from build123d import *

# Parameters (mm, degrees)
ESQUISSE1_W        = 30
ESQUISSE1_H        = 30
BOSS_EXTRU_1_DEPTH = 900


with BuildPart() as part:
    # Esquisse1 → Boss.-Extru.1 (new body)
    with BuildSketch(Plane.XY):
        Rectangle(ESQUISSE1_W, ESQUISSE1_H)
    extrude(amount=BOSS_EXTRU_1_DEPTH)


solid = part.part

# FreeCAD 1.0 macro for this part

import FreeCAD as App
import Part
import Sketcher
Q = App.Units.Quantity


def add_polygon(sketch, points):
    """Adds a closed chain of lines whose ends are joined by coincident constraints."""
    first, n = sketch.GeometryCount, len(points)
    for a, b in zip(points, points[1:] + points[:1]):
        sketch.addGeometry(Part.LineSegment(App.Vector(*a, 0), App.Vector(*b, 0)), False)
    for i in range(n):
        sketch.addConstraint(Sketcher.Constraint("Coincident", first + i, 2, first + (i + 1) % n, 1))

doc = App.newDocument("Part")
body = doc.addObject("PartDesign::Body", "Body")

# Sketch on XY plane
sketch1 = doc.addObject("Sketcher::SketchObject", "Sketch")
body.addObject(sketch1)
sketch1.AttachmentSupport = (doc.XY_Plane, [""])
sketch1.MapMode = "FlatFace"
add_polygon(sketch1, [(-15, 15), (-15, -15), (15, -15), (15, 15)])  # lines 0-3
sketch1.addConstraint(Sketcher.Constraint("Vertical", 0))
sketch1.addConstraint(Sketcher.Constraint("Horizontal", 1))
sketch1.addConstraint(Sketcher.Constraint("Vertical", 2))
sketch1.addConstraint(Sketcher.Constraint("Horizontal", 3))
sketch1.addConstraint(Sketcher.Constraint("Symmetric", 0, 2, 2, 2, -1, 1))
sketch1.addConstraint(Sketcher.Constraint("Equal", 3, 0))
sketch1.addConstraint(Sketcher.Constraint("DistanceX", 1, 1, 1, 2, Q("30 mm")))
pad1 = doc.addObject("PartDesign::Pad", "Pad")
body.addObject(pad1)
pad1.Profile = sketch1
pad1.Length = 900

doc.recompute()
